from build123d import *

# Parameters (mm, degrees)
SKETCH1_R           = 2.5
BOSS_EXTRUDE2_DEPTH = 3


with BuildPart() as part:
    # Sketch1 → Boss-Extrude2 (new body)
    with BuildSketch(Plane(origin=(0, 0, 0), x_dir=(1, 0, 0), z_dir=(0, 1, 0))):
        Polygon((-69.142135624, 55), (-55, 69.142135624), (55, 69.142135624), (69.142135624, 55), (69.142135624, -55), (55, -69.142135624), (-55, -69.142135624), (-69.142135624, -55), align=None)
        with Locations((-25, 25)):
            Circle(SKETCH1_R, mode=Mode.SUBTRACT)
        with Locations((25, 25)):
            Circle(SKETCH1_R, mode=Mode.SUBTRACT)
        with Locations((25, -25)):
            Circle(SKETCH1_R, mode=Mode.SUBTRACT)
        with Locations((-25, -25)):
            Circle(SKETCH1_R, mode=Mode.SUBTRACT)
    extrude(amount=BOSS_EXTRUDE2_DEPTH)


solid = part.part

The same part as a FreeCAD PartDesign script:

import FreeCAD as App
import Part
import Sketcher


def add_polygon(sketch, points):
    """Adds a closed chain of lines whose ends are joined by coincident constraints."""
    first, n = sketch.GeometryCount, len(points)
    for a, b in zip(points, points[1:] + points[:1]):
        sketch.addGeometry(Part.LineSegment(App.Vector(*a, 0), App.Vector(*b, 0)), False)
    for i in range(n):
        sketch.addConstraint(Sketcher.Constraint("Coincident", first + i, 2, first + (i + 1) % n, 1))

doc = App.newDocument("Part")
body = doc.addObject("PartDesign::Body", "Body")

sketch1 = body.newObject("Sketcher::SketchObject", "Sketch")
sketch1.AttachmentSupport = (doc.getObject("XZ_Plane"), [""])
sketch1.MapMode = "FlatFace"
add_polygon(sketch1, [(-55, -69.1), (-69.1, -55), (-69.1, 55), (-55, 69.1), (55, 69.1), (69.1, 55), (69.1, -55), (55, -69.1)])
sketch1.addGeometry(Part.Circle(App.Vector(25, 25, 0), App.Vector(0, 0, 1), 2.5), False)
sketch1.addGeometry(Part.Circle(App.Vector(-25, 25, 0), App.Vector(0, 0, 1), 2.5), False)
sketch1.addGeometry(Part.Circle(App.Vector(25, -25, 0), App.Vector(0, 0, 1), 2.5), False)
sketch1.addGeometry(Part.Circle(App.Vector(-25, -25, 0), App.Vector(0, 0, 1), 2.5), False)
sketch1.addConstraint([
    Sketcher.Constraint("Vertical", 1),
    Sketcher.Constraint("Horizontal", 3),
    Sketcher.Constraint("Vertical", 5),
    Sketcher.Constraint("Horizontal", 7),
    Sketcher.Constraint("Equal", 8, 9),
    Sketcher.Constraint("Equal", 9, 10),
    Sketcher.Constraint("Equal", 10, 11),
    Sketcher.Constraint("Symmetric", 9, 3, 10, 3, -1, 1),
    Sketcher.Constraint("Symmetric", 8, 3, 11, 3, -1, 1),
    Sketcher.Constraint("Symmetric", 0, 2, 4, 2, -1, 1),
    Sketcher.Constraint("Symmetric", 2, 2, 6, 2, -1, 1),
    Sketcher.Constraint("Symmetric", 8, 3, 9, 3, -2),
    Sketcher.Constraint("Perpendicular", 0, 2),
    Sketcher.Constraint("Perpendicular", 2, 4),
    Sketcher.Constraint("Perpendicular", 4, 6),
    Sketcher.Constraint("Horizontal", 1, 2, 4, 2),
    Sketcher.Constraint("Vertical", 3, 2, 6, 2),
    Sketcher.Constraint("Equal", 7, 1),
    Sketcher.Constraint("Diameter", 8, 5.0),
    Sketcher.Constraint("DistanceX", 3, 1, 3, 2, 110.0),
    Sketcher.Constraint("Distance", 0, 20.0),
    Sketcher.Constraint("DistanceX", -1, 1, 8, 3, 25.0),
    Sketcher.Constraint("DistanceY", -1, 1, 8, 3, 25.0),
])
pad1 = body.newObject("PartDesign::Pad", "Pad")
pad1.Profile = sketch1
pad1.Length = 3
pad1.Reversed = True

doc.recompute()
